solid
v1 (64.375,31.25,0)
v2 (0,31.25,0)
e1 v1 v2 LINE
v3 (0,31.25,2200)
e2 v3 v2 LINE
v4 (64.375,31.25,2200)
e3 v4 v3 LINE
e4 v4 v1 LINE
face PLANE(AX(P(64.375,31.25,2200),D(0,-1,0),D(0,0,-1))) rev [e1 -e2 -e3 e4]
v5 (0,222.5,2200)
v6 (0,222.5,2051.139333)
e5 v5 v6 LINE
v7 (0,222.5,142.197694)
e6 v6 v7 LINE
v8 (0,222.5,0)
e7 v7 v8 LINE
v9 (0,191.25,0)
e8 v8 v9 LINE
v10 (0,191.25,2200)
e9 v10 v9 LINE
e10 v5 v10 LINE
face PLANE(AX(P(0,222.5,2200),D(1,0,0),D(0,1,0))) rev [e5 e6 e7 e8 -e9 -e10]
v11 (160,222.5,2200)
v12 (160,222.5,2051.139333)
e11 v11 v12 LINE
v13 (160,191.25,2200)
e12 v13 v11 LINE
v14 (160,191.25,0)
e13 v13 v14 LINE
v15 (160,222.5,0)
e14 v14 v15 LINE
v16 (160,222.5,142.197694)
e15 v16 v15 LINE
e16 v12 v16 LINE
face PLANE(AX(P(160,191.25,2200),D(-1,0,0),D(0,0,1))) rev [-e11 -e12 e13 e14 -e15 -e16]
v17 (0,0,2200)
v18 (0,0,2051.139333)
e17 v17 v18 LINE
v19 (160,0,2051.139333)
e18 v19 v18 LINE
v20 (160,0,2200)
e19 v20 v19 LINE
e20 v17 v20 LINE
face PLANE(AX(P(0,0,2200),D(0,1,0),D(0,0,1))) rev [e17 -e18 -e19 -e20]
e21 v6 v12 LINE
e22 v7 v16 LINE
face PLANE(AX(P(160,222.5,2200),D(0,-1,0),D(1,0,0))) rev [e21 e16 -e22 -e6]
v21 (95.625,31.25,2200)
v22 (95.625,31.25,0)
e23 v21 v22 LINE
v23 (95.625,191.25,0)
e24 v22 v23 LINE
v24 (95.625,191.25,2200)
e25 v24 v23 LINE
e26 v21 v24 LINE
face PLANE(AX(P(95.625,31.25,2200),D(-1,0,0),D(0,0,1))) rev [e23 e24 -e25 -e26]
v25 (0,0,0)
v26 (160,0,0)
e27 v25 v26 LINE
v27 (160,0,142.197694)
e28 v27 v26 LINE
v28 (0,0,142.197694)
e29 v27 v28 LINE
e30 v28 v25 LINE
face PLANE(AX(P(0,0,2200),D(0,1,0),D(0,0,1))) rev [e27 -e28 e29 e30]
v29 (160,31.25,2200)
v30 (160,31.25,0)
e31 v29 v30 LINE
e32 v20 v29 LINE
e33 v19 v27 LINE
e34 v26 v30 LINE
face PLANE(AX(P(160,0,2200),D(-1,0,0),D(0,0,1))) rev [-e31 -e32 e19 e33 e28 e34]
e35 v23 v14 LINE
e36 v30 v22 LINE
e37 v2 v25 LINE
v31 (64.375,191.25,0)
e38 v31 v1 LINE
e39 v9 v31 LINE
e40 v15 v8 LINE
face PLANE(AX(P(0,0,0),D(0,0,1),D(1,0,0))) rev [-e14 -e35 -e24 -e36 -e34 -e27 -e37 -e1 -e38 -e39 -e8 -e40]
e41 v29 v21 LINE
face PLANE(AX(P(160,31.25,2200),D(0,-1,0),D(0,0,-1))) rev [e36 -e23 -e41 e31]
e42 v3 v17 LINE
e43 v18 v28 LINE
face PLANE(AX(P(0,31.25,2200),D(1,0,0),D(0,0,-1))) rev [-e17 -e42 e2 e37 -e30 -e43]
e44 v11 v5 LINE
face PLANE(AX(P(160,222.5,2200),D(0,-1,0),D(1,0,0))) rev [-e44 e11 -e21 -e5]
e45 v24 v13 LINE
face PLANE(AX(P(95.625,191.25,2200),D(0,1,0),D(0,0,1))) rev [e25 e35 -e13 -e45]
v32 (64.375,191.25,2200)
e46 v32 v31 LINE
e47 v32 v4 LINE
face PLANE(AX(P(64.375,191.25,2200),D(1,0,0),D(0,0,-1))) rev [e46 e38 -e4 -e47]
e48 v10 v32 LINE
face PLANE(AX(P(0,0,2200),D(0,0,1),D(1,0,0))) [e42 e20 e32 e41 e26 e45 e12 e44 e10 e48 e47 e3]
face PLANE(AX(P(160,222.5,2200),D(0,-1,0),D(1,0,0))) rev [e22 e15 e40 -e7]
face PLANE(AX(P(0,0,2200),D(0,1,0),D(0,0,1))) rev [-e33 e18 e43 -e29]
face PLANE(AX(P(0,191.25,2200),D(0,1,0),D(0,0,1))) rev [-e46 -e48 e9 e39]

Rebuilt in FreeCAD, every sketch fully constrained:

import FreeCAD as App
import Part
import Sketcher

V = App.Vector

doc = App.newDocument("Part")
body = doc.addObject("PartDesign::Body", "Body")

sketch1 = doc.addObject("Sketcher::SketchObject", "Sketch")
body.addObject(sketch1)
sketch1.AttachmentSupport = (doc.XY_Plane, [""])
sketch1.MapMode = "FlatFace"
sketch1.addGeometry([
    Part.LineSegment(V(0, 0, 0), V(160, 0, 0)),
    Part.LineSegment(V(160, 0, 0), V(160, 31, 0)),
    Part.LineSegment(V(160, 31, 0), V(96, 31, 0)),
    Part.LineSegment(V(96, 31, 0), V(96, 191, 0)),
    Part.LineSegment(V(96, 191, 0), V(160, 191, 0)),
    Part.LineSegment(V(160, 191, 0), V(160, 222, 0)),
    Part.LineSegment(V(160, 222, 0), V(0, 222, 0)),
    Part.LineSegment(V(0, 222, 0), V(0, 191, 0)),
    Part.LineSegment(V(0, 191, 0), V(64, 191, 0)),
    Part.LineSegment(V(64, 191, 0), V(64, 31, 0)),
    Part.LineSegment(V(64, 31, 0), V(0, 31, 0)),
    Part.LineSegment(V(0, 31, 0), V(0, 0, 0)),
], False)
sketch1.addConstraint([
    Sketcher.Constraint("Coincident", 0, 2, 1, 1),
    Sketcher.Constraint("Coincident", 1, 2, 2, 1),
    Sketcher.Constraint("Coincident", 2, 2, 3, 1),
    Sketcher.Constraint("Coincident", 3, 2, 4, 1),
    Sketcher.Constraint("Coincident", 4, 2, 5, 1),
    Sketcher.Constraint("Coincident", 5, 2, 6, 1),
    Sketcher.Constraint("Coincident", 6, 2, 7, 1),
    Sketcher.Constraint("Coincident", 7, 2, 8, 1),
    Sketcher.Constraint("Coincident", 8, 2, 9, 1),
    Sketcher.Constraint("Coincident", 9, 2, 10, 1),
    Sketcher.Constraint("Coincident", 10, 2, 11, 1),
    Sketcher.Constraint("Coincident", 11, 2, 0, 1),
    Sketcher.Constraint("Horizontal", 0),
    Sketcher.Constraint("Vertical", 1),
    Sketcher.Constraint("Horizontal", 2),
    Sketcher.Constraint("Vertical", 3),
    Sketcher.Constraint("Horizontal", 4),
    Sketcher.Constraint("Vertical", 5),
    Sketcher.Constraint("Horizontal", 6),
    Sketcher.Constraint("Vertical", 7),
    Sketcher.Constraint("Horizontal", 8),
    Sketcher.Constraint("Vertical", 9),
    Sketcher.Constraint("Horizontal", 10),
    Sketcher.Constraint("Vertical", 11),
    Sketcher.Constraint("Coincident", 11, 2, -1, 1),
    Sketcher.Constraint("PointOnObject", 6, 2, -2),
    Sketcher.Constraint("Horizontal", 4, 2, 7, 2),
    Sketcher.Constraint("Horizontal", 2, 2, 9, 2),
    Sketcher.Constraint("Vertical", 1, 2, 4, 2),
    Sketcher.Constraint("Equal", 4, 8),
    Sketcher.Constraint("Equal", 6, 3),
    Sketcher.Constraint("Equal", 1, 5),
    Sketcher.Constraint("DistanceX", 0, 1, 0, 2, 160.0),
    Sketcher.Constraint("DistanceY", 1, 1, 1, 2, 31.25),
    Sketcher.Constraint("DistanceX", 2, 2, 2, 1, 64.375),
])
pad1 = doc.addObject("PartDesign::Pad", "Pad")
body.addObject(pad1)
pad1.Profile = sketch1
pad1.Length = 2200

doc.recompute()
